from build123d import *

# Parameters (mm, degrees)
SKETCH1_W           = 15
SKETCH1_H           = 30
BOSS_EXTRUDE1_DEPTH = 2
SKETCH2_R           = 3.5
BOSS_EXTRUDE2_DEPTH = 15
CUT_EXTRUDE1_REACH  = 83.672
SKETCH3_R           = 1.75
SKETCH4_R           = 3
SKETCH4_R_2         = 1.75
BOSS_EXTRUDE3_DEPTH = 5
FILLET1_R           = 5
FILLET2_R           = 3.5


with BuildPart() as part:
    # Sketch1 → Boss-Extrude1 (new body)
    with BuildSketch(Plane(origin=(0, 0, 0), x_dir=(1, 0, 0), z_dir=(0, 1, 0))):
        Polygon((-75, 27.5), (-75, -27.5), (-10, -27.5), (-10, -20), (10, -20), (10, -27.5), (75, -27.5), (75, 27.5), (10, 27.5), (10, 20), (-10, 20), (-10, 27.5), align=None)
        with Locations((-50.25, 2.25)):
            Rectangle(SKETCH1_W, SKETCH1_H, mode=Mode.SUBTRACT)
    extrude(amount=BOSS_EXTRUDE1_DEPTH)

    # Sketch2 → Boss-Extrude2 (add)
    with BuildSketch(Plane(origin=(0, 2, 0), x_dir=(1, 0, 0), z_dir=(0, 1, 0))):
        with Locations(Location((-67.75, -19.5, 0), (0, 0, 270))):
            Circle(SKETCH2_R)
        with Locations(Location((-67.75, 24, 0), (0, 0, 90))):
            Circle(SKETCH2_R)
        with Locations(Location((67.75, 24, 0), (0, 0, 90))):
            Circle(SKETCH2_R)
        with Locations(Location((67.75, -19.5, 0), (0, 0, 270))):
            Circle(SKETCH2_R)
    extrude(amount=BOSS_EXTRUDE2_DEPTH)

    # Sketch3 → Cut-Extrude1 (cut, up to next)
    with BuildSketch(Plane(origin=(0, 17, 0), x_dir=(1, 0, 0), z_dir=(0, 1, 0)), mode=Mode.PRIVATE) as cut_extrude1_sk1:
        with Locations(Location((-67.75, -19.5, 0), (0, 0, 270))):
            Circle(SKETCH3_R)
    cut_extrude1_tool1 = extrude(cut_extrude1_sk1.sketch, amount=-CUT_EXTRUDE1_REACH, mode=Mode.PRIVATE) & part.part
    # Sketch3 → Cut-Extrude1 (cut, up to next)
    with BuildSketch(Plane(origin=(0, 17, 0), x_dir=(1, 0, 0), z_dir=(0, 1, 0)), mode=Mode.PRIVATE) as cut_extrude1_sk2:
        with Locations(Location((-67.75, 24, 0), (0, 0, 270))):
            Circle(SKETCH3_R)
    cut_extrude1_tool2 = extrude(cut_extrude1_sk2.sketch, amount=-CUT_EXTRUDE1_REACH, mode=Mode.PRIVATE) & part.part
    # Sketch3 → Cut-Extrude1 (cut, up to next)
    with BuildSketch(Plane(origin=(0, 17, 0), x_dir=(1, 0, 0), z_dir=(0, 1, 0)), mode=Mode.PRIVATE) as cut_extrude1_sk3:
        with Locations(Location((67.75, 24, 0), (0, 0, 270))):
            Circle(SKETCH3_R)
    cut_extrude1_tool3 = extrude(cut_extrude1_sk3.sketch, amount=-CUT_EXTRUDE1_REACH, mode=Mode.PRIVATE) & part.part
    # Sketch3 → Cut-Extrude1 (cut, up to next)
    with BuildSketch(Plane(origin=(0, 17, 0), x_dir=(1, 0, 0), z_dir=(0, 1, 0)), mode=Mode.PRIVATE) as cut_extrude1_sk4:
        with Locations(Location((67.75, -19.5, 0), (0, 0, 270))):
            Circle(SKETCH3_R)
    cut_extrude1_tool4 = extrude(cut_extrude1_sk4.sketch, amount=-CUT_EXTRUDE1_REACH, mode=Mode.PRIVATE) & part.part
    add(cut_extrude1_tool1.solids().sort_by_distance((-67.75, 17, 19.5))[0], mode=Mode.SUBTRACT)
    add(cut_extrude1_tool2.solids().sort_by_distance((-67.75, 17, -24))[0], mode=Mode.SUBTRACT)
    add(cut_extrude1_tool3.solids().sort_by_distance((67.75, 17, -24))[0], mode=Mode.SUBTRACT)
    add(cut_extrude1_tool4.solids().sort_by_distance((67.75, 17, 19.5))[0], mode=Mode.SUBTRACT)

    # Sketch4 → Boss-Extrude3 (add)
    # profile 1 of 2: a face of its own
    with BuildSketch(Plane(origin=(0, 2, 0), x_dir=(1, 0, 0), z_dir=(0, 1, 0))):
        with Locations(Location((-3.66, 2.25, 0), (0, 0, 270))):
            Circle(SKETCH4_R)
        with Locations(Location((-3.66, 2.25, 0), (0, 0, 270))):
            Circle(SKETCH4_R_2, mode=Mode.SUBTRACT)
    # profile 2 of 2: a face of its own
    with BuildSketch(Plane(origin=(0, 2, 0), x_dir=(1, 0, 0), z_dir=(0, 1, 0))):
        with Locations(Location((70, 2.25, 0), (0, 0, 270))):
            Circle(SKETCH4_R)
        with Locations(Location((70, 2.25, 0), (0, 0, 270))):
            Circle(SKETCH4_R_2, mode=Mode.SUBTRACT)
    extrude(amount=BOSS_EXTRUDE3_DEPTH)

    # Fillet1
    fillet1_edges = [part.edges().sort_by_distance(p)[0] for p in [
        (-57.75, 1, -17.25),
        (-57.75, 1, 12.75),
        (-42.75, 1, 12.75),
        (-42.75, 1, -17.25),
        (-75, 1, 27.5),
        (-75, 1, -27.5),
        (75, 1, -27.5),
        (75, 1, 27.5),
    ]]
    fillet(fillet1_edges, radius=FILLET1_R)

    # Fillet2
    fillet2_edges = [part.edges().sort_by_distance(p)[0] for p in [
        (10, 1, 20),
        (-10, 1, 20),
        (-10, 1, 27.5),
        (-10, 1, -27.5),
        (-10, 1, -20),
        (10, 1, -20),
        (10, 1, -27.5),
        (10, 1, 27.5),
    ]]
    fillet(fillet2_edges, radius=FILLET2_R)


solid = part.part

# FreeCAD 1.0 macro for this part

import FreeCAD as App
import Part
import Sketcher
from FreeCAD import Vector


def edges_at(feature, points):
    """Names of the edges that pass closest to the given points."""
    edges = feature.Shape.Edges
    near = lambda p: min(range(len(edges)), key=lambda i: edges[i].distToShape(Part.Vertex(*p))[0])
    return sorted({f"Edge{near(p) + 1}" for p in points})

doc = App.newDocument("Part")
body = doc.addObject("PartDesign::Body", "Body")

sketch1 = body.newObject("Sketcher::SketchObject", "Sketch")
sketch1.AttachmentSupport = (doc.getObject("XZ_Plane"), [""])
sketch1.MapMode = "FlatFace"
sketch1.addGeometry([
    Part.LineSegment(Vector(-75, -27.5, 0), Vector(-75, 27.5, 0)),
    Part.LineSegment(Vector(-75, 27.5, 0), Vector(-10, 27.5, 0)),
    Part.LineSegment(Vector(-10, 27.5, 0), Vector(-10, 20, 0)),
    Part.LineSegment(Vector(-10, 20, 0), Vector(10, 20, 0)),
    Part.LineSegment(Vector(10, 20, 0), Vector(10, 27.5, 0)),
    Part.LineSegment(Vector(10, 27.5, 0), Vector(75, 27.5, 0)),
    Part.LineSegment(Vector(75, 27.5, 0), Vector(75, -27.5, 0)),
    Part.LineSegment(Vector(75, -27.5, 0), Vector(10, -27.5, 0)),
    Part.LineSegment(Vector(10, -27.5, 0), Vector(10, -20, 0)),
    Part.LineSegment(Vector(10, -20, 0), Vector(-10, -20, 0)),
    Part.LineSegment(Vector(-10, -20, 0), Vector(-10, -27.5, 0)),
    Part.LineSegment(Vector(-10, -27.5, 0), Vector(-75, -27.5, 0)),
    Part.LineSegment(Vector(-42.75, 12.75, 0), Vector(-57.75, 12.75, 0)),
    Part.LineSegment(Vector(-57.75, 12.75, 0), Vector(-57.75, -17.25, 0)),
    Part.LineSegment(Vector(-57.75, -17.25, 0), Vector(-42.75, -17.25, 0)),
    Part.LineSegment(Vector(-42.75, -17.25, 0), Vector(-42.75, 12.75, 0)),
], False)
sketch1.addConstraint([
    Sketcher.Constraint("Coincident", 0, 2, 1, 1),
    Sketcher.Constraint("Coincident", 1, 2, 2, 1),
    Sketcher.Constraint("Coincident", 2, 2, 3, 1),
    Sketcher.Constraint("Coincident", 3, 2, 4, 1),
    Sketcher.Constraint("Coincident", 4, 2, 5, 1),
    Sketcher.Constraint("Coincident", 5, 2, 6, 1),
    Sketcher.Constraint("Coincident", 6, 2, 7, 1),
    Sketcher.Constraint("Coincident", 7, 2, 8, 1),
    Sketcher.Constraint("Coincident", 8, 2, 9, 1),
    Sketcher.Constraint("Coincident", 9, 2, 10, 1),
    Sketcher.Constraint("Coincident", 10, 2, 11, 1),
    Sketcher.Constraint("Coincident", 11, 2, 0, 1),
    Sketcher.Constraint("Coincident", 12, 2, 13, 1),
    Sketcher.Constraint("Coincident", 13, 2, 14, 1),
    Sketcher.Constraint("Coincident", 14, 2, 15, 1),
    Sketcher.Constraint("Coincident", 15, 2, 12, 1),
    Sketcher.Constraint("Vertical", 0),
    Sketcher.Constraint("Horizontal", 1),
    Sketcher.Constraint("Vertical", 2),
    Sketcher.Constraint("Horizontal", 3),
    Sketcher.Constraint("Vertical", 4),
    Sketcher.Constraint("Horizontal", 5),
    Sketcher.Constraint("Vertical", 6),
    Sketcher.Constraint("Horizontal", 7),
    Sketcher.Constraint("Vertical", 8),
    Sketcher.Constraint("Horizontal", 9),
    Sketcher.Constraint("Vertical", 10),
    Sketcher.Constraint("Horizontal", 11),
    Sketcher.Constraint("Horizontal", 12),
    Sketcher.Constraint("Vertical", 13),
    Sketcher.Constraint("Horizontal", 14),
    Sketcher.Constraint("Vertical", 15),
    Sketcher.Constraint("Symmetric", 0, 2, 6, 2, -1, 1),
    Sketcher.Constraint("Symmetric", 2, 2, 8, 2, -1, 1),
    Sketcher.Constraint("Symmetric", 4, 2, 10, 2, -1, 1),
    Sketcher.Constraint("Symmetric", 1, 2, 4, 2, -2),
    Sketcher.Constraint("DistanceX", 1, 1, 1, 2, 65.0),
    Sketcher.Constraint("DistanceX", 3, 1, 3, 2, 20.0),
    Sketcher.Constraint("DistanceX", 12, 2, 12, 1, 15.0),
    Sketcher.Constraint("DistanceY", 0, 1, 0, 2, 55.0),
    Sketcher.Constraint("DistanceY", 13, 2, 13, 1, 30.0),
    Sketcher.Constraint("DistanceY", 2, 2, 2, 1, 7.5),
    Sketcher.Constraint("DistanceX", 12, 2, -1, 1, 57.75),
    Sketcher.Constraint("DistanceY", -1, 1, 12, 2, 12.75),
])
pad1 = body.newObject("PartDesign::Pad", "Pad")
pad1.Profile = sketch1
pad1.Length = 2
pad1.Reversed = True

sketch2 = body.newObject("Sketcher::SketchObject", "Sketch001")
sketch2.AttachmentSupport = (doc.getObject("XZ_Plane"), [""])
sketch2.MapMode = "FlatFace"
sketch2.AttachmentOffset = App.Placement(Vector(0, 0, -2), App.Rotation())
sketch2.addGeometry([
    Part.Circle(Vector(-67.75, 19.5, 0), Vector(0, 0, 1), 3.5),
    Part.Circle(Vector(-67.75, -24, 0), Vector(0, 0, 1), 3.5),
    Part.Circle(Vector(67.75, -24, 0), Vector(0, 0, 1), 3.5),
    Part.Circle(Vector(67.75, 19.5, 0), Vector(0, 0, 1), 3.5),
], False)
sketch2.addConstraint([
    Sketcher.Constraint("Equal", 0, 1),
    Sketcher.Constraint("Equal", 1, 2),
    Sketcher.Constraint("Equal", 2, 3),
    Sketcher.Constraint("Symmetric", 1, 3, 2, 3, -2),
    Sketcher.Constraint("Symmetric", 0, 3, 3, 3, -2),
    Sketcher.Constraint("Vertical", 0, 3, 1, 3),
    Sketcher.Constraint("Diameter", 0, 7.0),
    Sketcher.Constraint("DistanceY", 1, 3, -1, 1, 24.0),
    Sketcher.Constraint("DistanceY", -1, 1, 0, 3, 19.5),
    Sketcher.Constraint("DistanceX", 1, 3, 2, 3, 135.5),
])
pad2 = body.newObject("PartDesign::Pad", "Pad001")
pad2.Profile = sketch2
pad2.Length = 15
pad2.Reversed = True

sketch3 = body.newObject("Sketcher::SketchObject", "Sketch002")
sketch3.AttachmentSupport = (doc.getObject("XZ_Plane"), [""])
sketch3.MapMode = "FlatFace"
sketch3.AttachmentOffset = App.Placement(Vector(0, 0, -17), App.Rotation())
sketch3.addGeometry(Part.Circle(Vector(-67.75, 19.5, 0), Vector(0, 0, 1), 1.75), False)
sketch3.addConstraint([
    Sketcher.Constraint("Diameter", 0, 3.5),
    Sketcher.Constraint("DistanceY", -1, 1, 0, 3, 19.5),
    Sketcher.Constraint("DistanceX", 0, 3, -1, 1, 67.75),
])
pocket1 = body.newObject("PartDesign::Pocket", "Pocket")
pocket1.Profile = sketch3
pocket1.Type = "UpToFirst"
pocket1.Reversed = True

sketch4 = body.newObject("Sketcher::SketchObject", "Sketch003")
sketch4.AttachmentSupport = (doc.getObject("XZ_Plane"), [""])
sketch4.MapMode = "FlatFace"
sketch4.AttachmentOffset = App.Placement(Vector(0, 0, -17), App.Rotation())
sketch4.addGeometry(Part.Circle(Vector(-67.75, -24, 0), Vector(0, 0, 1), 1.75), False)
sketch4.addConstraint([
    Sketcher.Constraint("Diameter", 0, 3.5),
    Sketcher.Constraint("DistanceY", 0, 3, -1, 1, 24.0),
    Sketcher.Constraint("DistanceX", 0, 3, -1, 1, 67.75),
])
pocket2 = body.newObject("PartDesign::Pocket", "Pocket001")
pocket2.Profile = sketch4
pocket2.Type = "UpToFirst"
pocket2.Reversed = True

sketch5 = body.newObject("Sketcher::SketchObject", "Sketch004")
sketch5.AttachmentSupport = (doc.getObject("XZ_Plane"), [""])
sketch5.MapMode = "FlatFace"
sketch5.AttachmentOffset = App.Placement(Vector(0, 0, -17), App.Rotation())
sketch5.addGeometry(Part.Circle(Vector(67.75, -24, 0), Vector(0, 0, 1), 1.75), False)
sketch5.addConstraint([
    Sketcher.Constraint("Diameter", 0, 3.5),
    Sketcher.Constraint("DistanceY", 0, 3, -1, 1, 24.0),
    Sketcher.Constraint("DistanceX", -1, 1, 0, 3, 67.75),
])
pocket3 = body.newObject("PartDesign::Pocket", "Pocket002")
pocket3.Profile = sketch5
pocket3.Type = "UpToFirst"
pocket3.Reversed = True

sketch6 = body.newObject("Sketcher::SketchObject", "Sketch005")
sketch6.AttachmentSupport = (doc.getObject("XZ_Plane"), [""])
sketch6.MapMode = "FlatFace"
sketch6.AttachmentOffset = App.Placement(Vector(0, 0, -17), App.Rotation())
sketch6.addGeometry(Part.Circle(Vector(67.75, 19.5, 0), Vector(0, 0, 1), 1.75), False)
sketch6.addConstraint([
    Sketcher.Constraint("Diameter", 0, 3.5),
    Sketcher.Constraint("DistanceY", -1, 1, 0, 3, 19.5),
    Sketcher.Constraint("DistanceX", -1, 1, 0, 3, 67.75),
])
pocket4 = body.newObject("PartDesign::Pocket", "Pocket003")
pocket4.Profile = sketch6
pocket4.Type = "UpToFirst"
pocket4.Reversed = True

sketch7 = body.newObject("Sketcher::SketchObject", "Sketch006")
sketch7.AttachmentSupport = (doc.getObject("XZ_Plane"), [""])
sketch7.MapMode = "FlatFace"
sketch7.AttachmentOffset = App.Placement(Vector(0, 0, -2), App.Rotation())
sketch7.addGeometry([
    Part.Circle(Vector(-3.66, -2.25, 0), Vector(0, 0, 1), 3),
    Part.Circle(Vector(-3.66, -2.25, 0), Vector(0, 0, 1), 1.75),
    Part.Circle(Vector(70, -2.25, 0), Vector(0, 0, 1), 3),
    Part.Circle(Vector(70, -2.25, 0), Vector(0, 0, 1), 1.75),
], False)
sketch7.addConstraint([
    Sketcher.Constraint("Coincident", 1, 3, 0, 3),
    Sketcher.Constraint("Coincident", 3, 3, 2, 3),
    Sketcher.Constraint("Equal", 0, 2),
    Sketcher.Constraint("Equal", 1, 3),
    Sketcher.Constraint("Horizontal", 1, 3, 2, 3),
    Sketcher.Constraint("Diameter", 0, 6.0),
    Sketcher.Constraint("Diameter", 1, 3.5),
    Sketcher.Constraint("DistanceX", -1, 1, 2, 3, 70.0),
    Sketcher.Constraint("DistanceX", 0, 3, -1, 1, 3.66),
    Sketcher.Constraint("DistanceY", 0, 3, -1, 1, 2.25),
])
pad3 = body.newObject("PartDesign::Pad", "Pad002")
pad3.Profile = sketch7
pad3.Length = 5
pad3.Reversed = True
doc.recompute()

fillet = body.newObject("PartDesign::Fillet", "Fillet")
fillet.Base = (pad3, edges_at(pad3, [
    (-57.75, 1, -17.25),
    (-57.75, 1, 12.75),
    (-42.75, 1, 12.75),
    (-42.75, 1, -17.25),
    (-75, 1, 27.5),
    (-75, 1, -27.5),
    (75, 1, -27.5),
    (75, 1, 27.5),
]))
fillet.Radius = 5
doc.recompute()

fillet2 = body.newObject("PartDesign::Fillet", "Fillet001")
fillet2.Base = (fillet, edges_at(fillet, [
    (10, 1, 20),
    (-10, 1, 20),
    (-10, 1, 27.5),
    (-10, 1, -27.5),
    (-10, 1, -20),
    (10, 1, -20),
    (10, 1, -27.5),
    (10, 1, 27.5),
]))
fillet2.Radius = 3.5

doc.recompute()
